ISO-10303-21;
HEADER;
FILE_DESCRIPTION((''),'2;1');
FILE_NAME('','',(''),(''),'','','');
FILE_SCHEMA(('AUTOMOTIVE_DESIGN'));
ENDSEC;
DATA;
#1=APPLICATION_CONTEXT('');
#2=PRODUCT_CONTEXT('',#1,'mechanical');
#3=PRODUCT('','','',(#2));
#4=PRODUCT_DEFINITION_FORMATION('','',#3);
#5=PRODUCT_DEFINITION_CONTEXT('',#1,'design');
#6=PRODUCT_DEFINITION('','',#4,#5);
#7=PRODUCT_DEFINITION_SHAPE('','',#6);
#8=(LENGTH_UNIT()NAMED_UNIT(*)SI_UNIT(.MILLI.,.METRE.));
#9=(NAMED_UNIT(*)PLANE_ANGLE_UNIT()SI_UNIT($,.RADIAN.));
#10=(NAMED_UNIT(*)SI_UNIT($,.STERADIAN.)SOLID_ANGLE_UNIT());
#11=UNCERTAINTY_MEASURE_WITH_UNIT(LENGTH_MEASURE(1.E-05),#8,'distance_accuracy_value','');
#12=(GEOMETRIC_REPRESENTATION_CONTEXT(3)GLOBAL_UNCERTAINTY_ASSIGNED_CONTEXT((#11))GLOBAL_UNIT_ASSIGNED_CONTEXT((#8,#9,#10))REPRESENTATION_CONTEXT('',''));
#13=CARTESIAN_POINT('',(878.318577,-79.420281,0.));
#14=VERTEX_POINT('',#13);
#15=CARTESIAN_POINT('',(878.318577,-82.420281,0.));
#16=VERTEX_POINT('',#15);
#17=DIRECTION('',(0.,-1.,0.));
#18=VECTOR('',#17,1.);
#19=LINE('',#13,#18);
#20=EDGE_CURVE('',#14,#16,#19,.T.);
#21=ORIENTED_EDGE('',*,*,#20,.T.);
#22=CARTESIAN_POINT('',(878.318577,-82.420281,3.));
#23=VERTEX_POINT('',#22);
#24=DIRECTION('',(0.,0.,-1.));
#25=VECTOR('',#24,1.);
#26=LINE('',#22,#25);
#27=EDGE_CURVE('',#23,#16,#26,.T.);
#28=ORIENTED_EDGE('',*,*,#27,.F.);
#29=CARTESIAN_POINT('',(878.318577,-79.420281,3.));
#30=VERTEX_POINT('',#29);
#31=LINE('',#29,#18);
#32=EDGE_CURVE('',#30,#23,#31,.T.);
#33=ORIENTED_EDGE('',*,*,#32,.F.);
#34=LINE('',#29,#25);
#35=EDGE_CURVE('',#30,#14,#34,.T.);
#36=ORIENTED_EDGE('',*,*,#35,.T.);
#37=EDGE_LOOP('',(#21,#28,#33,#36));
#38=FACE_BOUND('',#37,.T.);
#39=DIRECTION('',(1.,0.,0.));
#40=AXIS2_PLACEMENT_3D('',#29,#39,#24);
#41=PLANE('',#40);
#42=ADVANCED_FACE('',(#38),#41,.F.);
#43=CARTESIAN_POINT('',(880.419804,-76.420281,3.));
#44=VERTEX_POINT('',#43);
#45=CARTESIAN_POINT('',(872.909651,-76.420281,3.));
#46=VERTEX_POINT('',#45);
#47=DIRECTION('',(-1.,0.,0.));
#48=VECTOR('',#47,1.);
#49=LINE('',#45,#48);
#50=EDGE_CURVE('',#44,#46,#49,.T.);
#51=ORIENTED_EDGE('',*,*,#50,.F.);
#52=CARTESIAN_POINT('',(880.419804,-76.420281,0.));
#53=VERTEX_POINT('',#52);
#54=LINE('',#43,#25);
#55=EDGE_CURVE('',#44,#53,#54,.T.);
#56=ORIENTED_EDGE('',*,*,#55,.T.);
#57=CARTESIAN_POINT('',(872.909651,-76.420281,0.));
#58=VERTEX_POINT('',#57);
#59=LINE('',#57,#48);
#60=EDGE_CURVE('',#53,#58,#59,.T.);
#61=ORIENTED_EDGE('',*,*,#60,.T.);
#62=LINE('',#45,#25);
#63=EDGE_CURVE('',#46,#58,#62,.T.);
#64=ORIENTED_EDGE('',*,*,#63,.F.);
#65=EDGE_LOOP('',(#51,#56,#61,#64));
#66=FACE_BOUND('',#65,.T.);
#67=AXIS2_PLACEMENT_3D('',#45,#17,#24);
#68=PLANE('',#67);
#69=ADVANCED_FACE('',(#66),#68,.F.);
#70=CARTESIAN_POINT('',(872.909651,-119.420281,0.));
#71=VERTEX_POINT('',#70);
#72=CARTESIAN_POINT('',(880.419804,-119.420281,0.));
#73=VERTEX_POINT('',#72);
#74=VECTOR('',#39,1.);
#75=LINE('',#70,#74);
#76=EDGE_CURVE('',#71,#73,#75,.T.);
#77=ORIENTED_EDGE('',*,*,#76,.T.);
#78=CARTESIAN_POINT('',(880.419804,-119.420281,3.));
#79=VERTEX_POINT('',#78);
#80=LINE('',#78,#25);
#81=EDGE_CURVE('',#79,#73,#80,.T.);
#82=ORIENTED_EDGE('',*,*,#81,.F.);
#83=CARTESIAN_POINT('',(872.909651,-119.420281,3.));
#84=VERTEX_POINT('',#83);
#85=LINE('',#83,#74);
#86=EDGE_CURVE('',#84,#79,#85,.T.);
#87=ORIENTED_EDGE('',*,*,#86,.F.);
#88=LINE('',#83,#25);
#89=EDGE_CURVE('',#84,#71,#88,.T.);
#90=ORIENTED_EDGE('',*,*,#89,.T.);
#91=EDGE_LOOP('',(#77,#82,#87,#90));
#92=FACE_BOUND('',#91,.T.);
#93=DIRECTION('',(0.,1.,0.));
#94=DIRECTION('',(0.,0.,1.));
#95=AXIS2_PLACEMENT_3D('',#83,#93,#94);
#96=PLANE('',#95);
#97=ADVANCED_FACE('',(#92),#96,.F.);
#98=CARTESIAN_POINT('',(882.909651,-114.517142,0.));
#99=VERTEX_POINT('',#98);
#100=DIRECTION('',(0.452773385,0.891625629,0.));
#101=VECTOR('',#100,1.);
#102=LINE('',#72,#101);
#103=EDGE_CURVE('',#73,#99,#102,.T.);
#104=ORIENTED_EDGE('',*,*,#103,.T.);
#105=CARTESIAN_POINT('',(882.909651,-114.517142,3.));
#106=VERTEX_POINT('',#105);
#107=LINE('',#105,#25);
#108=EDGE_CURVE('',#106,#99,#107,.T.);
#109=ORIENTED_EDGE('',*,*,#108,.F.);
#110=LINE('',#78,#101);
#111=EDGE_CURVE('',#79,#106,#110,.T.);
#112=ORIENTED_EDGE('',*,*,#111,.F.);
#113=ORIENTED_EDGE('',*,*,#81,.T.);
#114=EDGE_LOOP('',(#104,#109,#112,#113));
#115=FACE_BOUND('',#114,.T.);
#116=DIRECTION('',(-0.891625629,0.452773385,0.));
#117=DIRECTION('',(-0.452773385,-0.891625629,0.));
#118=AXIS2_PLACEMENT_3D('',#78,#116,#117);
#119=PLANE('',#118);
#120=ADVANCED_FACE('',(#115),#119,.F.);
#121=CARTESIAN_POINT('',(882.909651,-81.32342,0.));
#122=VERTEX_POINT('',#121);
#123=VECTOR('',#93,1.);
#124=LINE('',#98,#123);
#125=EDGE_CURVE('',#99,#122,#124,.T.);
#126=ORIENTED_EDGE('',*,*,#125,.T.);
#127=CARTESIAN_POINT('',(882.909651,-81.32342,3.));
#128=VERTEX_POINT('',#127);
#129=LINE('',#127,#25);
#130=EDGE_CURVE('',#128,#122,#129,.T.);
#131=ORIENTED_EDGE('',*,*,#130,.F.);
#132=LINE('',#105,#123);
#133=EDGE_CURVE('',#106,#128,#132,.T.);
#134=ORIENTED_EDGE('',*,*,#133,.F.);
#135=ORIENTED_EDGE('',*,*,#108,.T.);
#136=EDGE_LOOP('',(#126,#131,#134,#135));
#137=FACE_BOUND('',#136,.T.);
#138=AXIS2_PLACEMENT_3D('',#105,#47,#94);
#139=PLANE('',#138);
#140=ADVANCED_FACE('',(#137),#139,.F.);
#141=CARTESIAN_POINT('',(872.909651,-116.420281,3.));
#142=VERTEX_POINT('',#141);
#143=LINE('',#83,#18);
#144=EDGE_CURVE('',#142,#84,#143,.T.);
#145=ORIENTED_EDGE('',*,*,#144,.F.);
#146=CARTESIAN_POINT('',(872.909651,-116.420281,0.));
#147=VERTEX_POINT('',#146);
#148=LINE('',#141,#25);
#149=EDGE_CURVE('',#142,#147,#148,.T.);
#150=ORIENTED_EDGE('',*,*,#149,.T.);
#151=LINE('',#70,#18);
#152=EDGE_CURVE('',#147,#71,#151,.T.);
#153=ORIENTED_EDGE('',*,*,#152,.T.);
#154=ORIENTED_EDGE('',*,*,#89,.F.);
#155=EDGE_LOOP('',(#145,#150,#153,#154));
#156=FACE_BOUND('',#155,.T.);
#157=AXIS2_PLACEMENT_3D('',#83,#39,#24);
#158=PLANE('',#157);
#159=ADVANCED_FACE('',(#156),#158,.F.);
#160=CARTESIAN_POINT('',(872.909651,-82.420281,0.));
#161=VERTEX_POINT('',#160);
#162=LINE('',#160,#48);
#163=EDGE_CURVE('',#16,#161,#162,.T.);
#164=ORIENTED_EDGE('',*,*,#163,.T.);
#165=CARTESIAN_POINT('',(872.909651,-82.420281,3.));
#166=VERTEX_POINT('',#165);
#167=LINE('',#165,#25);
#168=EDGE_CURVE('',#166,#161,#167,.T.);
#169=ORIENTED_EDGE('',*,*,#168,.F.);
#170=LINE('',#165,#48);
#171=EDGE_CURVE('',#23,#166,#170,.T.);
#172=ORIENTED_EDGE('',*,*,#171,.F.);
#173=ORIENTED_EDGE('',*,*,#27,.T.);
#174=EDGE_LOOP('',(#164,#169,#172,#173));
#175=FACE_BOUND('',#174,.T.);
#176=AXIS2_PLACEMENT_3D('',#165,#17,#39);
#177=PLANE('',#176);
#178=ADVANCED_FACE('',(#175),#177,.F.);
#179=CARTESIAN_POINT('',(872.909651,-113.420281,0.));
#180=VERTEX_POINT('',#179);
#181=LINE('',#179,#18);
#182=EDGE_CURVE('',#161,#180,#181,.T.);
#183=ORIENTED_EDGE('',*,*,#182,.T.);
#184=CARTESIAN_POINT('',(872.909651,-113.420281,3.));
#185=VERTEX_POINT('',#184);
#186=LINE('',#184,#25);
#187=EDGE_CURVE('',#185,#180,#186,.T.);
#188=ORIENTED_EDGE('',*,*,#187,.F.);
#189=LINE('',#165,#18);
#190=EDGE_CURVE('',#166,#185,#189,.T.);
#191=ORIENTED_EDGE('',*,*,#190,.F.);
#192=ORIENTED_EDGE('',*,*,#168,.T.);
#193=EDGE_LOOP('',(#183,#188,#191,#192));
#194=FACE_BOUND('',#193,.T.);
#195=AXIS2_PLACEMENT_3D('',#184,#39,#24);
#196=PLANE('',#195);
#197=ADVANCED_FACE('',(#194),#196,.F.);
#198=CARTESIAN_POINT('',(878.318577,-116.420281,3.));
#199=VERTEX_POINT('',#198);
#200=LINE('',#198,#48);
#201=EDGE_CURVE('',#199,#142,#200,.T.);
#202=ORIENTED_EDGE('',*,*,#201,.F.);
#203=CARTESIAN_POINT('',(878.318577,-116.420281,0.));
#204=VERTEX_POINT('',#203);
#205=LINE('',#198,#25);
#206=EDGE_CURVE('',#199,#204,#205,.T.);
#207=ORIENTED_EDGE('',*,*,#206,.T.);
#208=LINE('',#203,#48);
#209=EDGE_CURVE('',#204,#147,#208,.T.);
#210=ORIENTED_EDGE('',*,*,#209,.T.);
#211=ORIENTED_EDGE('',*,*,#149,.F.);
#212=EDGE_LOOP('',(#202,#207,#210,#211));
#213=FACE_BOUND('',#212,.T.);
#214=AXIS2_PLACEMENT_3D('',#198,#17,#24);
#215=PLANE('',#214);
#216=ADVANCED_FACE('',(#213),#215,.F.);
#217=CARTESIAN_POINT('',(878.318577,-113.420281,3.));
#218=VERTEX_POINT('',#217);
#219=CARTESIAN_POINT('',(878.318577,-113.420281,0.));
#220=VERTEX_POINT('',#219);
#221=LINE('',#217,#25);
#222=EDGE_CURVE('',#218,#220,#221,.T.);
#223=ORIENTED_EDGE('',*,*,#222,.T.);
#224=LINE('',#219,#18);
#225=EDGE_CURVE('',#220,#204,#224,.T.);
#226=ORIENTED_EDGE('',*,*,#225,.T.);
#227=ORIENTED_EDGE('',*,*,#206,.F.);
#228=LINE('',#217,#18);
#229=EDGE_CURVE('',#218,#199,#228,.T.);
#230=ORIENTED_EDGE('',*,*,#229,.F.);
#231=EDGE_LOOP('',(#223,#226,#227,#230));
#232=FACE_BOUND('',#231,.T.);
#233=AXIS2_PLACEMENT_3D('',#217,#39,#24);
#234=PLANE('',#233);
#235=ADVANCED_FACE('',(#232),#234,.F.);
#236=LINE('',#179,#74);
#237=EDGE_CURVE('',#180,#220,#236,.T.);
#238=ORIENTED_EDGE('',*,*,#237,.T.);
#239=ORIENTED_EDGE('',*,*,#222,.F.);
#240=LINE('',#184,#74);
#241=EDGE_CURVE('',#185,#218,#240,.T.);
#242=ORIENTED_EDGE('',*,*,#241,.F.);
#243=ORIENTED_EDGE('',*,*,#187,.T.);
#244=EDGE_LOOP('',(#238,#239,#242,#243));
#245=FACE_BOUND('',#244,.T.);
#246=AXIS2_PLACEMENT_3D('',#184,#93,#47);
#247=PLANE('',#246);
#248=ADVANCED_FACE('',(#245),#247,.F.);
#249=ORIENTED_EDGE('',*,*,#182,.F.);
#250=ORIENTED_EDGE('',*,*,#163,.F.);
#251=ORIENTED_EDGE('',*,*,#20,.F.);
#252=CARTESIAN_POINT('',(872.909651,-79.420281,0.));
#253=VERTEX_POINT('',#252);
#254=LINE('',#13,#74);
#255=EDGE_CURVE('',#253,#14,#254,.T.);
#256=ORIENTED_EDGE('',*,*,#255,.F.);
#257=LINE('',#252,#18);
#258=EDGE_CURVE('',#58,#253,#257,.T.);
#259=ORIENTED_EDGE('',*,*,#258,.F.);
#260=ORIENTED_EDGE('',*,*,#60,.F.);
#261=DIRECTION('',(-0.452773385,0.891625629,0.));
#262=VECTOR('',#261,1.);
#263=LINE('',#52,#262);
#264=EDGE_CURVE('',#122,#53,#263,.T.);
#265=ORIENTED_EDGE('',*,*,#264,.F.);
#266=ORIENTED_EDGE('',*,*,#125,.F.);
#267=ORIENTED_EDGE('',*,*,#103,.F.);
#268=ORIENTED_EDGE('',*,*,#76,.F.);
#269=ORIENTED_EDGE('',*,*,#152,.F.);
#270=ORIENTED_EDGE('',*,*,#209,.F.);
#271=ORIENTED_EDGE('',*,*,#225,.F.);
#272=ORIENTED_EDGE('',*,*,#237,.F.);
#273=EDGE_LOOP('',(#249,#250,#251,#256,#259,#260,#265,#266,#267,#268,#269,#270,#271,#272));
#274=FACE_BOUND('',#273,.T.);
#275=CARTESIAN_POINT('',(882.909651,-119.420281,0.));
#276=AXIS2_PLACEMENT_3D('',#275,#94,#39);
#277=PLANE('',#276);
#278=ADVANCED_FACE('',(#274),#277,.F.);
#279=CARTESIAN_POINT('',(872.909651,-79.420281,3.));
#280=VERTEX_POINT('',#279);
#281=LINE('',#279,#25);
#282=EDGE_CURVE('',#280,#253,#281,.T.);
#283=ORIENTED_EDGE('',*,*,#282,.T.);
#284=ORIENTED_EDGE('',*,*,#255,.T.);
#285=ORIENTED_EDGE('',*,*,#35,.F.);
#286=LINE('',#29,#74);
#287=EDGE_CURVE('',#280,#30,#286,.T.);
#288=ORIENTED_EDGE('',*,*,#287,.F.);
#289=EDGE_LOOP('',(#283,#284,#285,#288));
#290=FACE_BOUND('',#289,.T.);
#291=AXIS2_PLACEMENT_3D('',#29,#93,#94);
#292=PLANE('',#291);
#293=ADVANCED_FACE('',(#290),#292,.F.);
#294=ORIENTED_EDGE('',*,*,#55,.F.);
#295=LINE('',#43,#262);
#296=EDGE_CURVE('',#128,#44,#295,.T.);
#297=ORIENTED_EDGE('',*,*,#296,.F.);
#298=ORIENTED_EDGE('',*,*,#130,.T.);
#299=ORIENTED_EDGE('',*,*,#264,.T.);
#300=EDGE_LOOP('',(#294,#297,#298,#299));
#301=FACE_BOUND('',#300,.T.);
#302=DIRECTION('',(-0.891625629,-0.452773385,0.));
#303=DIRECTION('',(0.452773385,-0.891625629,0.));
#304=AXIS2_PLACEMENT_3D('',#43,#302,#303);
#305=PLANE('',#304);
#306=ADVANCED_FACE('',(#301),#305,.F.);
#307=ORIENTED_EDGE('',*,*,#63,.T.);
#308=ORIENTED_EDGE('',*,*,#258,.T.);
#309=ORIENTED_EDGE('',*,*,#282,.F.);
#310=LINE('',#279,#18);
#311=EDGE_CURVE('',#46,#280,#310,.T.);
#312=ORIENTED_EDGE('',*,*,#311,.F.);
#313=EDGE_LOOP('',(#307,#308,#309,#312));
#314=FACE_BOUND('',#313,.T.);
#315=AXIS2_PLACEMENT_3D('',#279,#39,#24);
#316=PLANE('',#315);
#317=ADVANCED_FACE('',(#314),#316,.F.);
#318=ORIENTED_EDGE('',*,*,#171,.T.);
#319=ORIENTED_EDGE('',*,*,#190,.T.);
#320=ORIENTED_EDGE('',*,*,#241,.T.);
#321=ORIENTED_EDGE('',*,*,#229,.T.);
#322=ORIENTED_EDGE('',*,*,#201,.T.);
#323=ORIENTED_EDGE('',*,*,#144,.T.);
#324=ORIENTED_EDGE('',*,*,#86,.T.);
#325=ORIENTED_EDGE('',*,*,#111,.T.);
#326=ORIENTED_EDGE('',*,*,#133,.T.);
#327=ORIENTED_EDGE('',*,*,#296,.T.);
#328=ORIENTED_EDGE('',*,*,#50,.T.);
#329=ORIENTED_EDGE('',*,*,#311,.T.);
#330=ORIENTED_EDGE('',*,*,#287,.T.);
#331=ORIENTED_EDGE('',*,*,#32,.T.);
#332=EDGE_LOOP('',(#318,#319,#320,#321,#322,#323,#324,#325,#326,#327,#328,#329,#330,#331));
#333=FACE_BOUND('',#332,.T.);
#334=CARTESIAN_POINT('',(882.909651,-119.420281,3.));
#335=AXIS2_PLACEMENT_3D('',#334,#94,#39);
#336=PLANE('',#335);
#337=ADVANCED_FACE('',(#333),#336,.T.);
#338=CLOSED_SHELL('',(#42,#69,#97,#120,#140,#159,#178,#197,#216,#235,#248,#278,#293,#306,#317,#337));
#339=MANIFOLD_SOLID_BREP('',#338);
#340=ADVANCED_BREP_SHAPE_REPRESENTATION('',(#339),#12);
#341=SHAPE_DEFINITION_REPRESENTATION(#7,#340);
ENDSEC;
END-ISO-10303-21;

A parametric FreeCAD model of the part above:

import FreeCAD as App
import Part
import Sketcher
from FreeCAD import Vector
Q = App.Units.Quantity

doc = App.newDocument("Part")
body = doc.addObject("PartDesign::Body", "Body")

# Sketch on XY plane
sketch1 = doc.addObject("Sketcher::SketchObject", "Sketch")
body.addObject(sketch1)
sketch1.AttachmentSupport = (doc.XY_Plane, [""])
sketch1.MapMode = "FlatFace"
sketch1.addGeometry([
    Part.LineSegment(Vector(882.9, -114.5, 0), Vector(882.9, -81.3, 0)),  # 0
    Part.LineSegment(Vector(882.9, -81.3, 0), Vector(880.4, -76.4, 0)),  # 1
    Part.LineSegment(Vector(880.4, -76.4, 0), Vector(872.9, -76.4, 0)),  # 2
    Part.LineSegment(Vector(872.9, -76.4, 0), Vector(872.9, -79.4, 0)),  # 3
    Part.LineSegment(Vector(872.9, -79.4, 0), Vector(878.3, -79.4, 0)),  # 4
    Part.LineSegment(Vector(878.3, -79.4, 0), Vector(878.3, -82.4, 0)),  # 5
    Part.LineSegment(Vector(878.3, -82.4, 0), Vector(872.9, -82.4, 0)),  # 6
    Part.LineSegment(Vector(872.9, -82.4, 0), Vector(872.9, -113.4, 0)),  # 7
    Part.LineSegment(Vector(872.9, -113.4, 0), Vector(878.3, -113.4, 0)),  # 8
    Part.LineSegment(Vector(878.3, -113.4, 0), Vector(878.3, -116.4, 0)),  # 9
    Part.LineSegment(Vector(878.3, -116.4, 0), Vector(872.9, -116.4, 0)),  # 10
    Part.LineSegment(Vector(872.9, -116.4, 0), Vector(872.9, -119.4, 0)),  # 11
    Part.LineSegment(Vector(872.9, -119.4, 0), Vector(880.4, -119.4, 0)),  # 12
    Part.LineSegment(Vector(880.4, -119.4, 0), Vector(882.9, -114.5, 0)),  # 13
], False)
sketch1.addConstraint([
    Sketcher.Constraint("Coincident", 0, 2, 1, 1),
    Sketcher.Constraint("Coincident", 1, 2, 2, 1),
    Sketcher.Constraint("Coincident", 2, 2, 3, 1),
    Sketcher.Constraint("Coincident", 3, 2, 4, 1),
    Sketcher.Constraint("Coincident", 4, 2, 5, 1),
    Sketcher.Constraint("Coincident", 5, 2, 6, 1),
    Sketcher.Constraint("Coincident", 6, 2, 7, 1),
    Sketcher.Constraint("Coincident", 7, 2, 8, 1),
    Sketcher.Constraint("Coincident", 8, 2, 9, 1),
    Sketcher.Constraint("Coincident", 9, 2, 10, 1),
    Sketcher.Constraint("Coincident", 10, 2, 11, 1),
    Sketcher.Constraint("Coincident", 11, 2, 12, 1),
    Sketcher.Constraint("Coincident", 12, 2, 13, 1),
    Sketcher.Constraint("Coincident", 13, 2, 0, 1),
    Sketcher.Constraint("Vertical", 0),
    Sketcher.Constraint("Horizontal", 2),
    Sketcher.Constraint("Vertical", 3),
    Sketcher.Constraint("Horizontal", 4),
    Sketcher.Constraint("Vertical", 5),
    Sketcher.Constraint("Horizontal", 6),
    Sketcher.Constraint("Vertical", 7),
    Sketcher.Constraint("Horizontal", 8),
    Sketcher.Constraint("Vertical", 9),
    Sketcher.Constraint("Horizontal", 10),
    Sketcher.Constraint("Vertical", 11),
    Sketcher.Constraint("Horizontal", 12),
    Sketcher.Constraint("Vertical", 3, 2, 6, 2),
    Sketcher.Constraint("Vertical", 5, 2, 8, 2),
    Sketcher.Constraint("Vertical", 7, 2, 10, 2),
    Sketcher.Constraint("Vertical", 1, 2, 12, 2),
    Sketcher.Constraint("Equal", 3, 5),
    Sketcher.Constraint("Equal", 5, 9),
    Sketcher.Constraint("Equal", 9, 11),
    Sketcher.Constraint("Equal", 1, 13),
    Sketcher.Constraint("DistanceY", 3, 2, 3, 1, Q("3 mm")),
    Sketcher.Constraint("DistanceY", 7, 2, 7, 1, Q("31 mm")),
    Sketcher.Constraint("DistanceX", 2, 2, 0, 2, Q("10 mm")),
    Sketcher.Constraint("Distance", 1, Q("5.4991 mm")),
    Sketcher.Constraint("DistanceX", 2, 2, 2, 1, Q("7.510154 mm")),
    Sketcher.Constraint("DistanceX", 4, 1, 4, 2, Q("5.408926 mm")),
    Sketcher.Constraint("DistanceX", -1, 1, 0, 2, Q("882.909651 mm")),
    Sketcher.Constraint("DistanceY", 0, 2, -1, 1, Q("81.32342 mm")),
])
pad1 = doc.addObject("PartDesign::Pad", "Pad")
body.addObject(pad1)
pad1.Profile = sketch1
pad1.Length = 3

doc.recompute()
